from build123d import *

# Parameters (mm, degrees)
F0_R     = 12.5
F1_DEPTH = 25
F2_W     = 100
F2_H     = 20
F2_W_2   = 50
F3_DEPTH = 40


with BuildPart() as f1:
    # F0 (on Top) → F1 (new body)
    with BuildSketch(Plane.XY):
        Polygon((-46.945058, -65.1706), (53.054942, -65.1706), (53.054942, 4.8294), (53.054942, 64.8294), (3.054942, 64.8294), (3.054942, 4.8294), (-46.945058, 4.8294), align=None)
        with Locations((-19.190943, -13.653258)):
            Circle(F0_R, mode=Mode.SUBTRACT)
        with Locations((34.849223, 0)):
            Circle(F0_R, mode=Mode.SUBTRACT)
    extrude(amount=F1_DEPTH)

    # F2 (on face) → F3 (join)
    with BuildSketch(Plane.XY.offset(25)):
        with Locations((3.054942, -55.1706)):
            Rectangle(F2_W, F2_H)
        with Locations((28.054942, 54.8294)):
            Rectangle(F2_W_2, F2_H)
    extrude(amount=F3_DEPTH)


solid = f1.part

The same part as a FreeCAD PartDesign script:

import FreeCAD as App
import Part
import Sketcher

V = App.Vector

doc = App.newDocument("Part")
params = doc.addObject("Spreadsheet::Sheet", "Params")
for row, (alias, value) in enumerate([
    ("sketch1_diameter", "25 mm"),
    ("sketch1_width", "100 mm"),
    ("sketch1_height", "130 mm"),
    ("sketch1_height2", "60 mm"),
    ("pad1_length", "25 mm"),
    ("sketch2_width", "100 mm"),
    ("sketch2_width2", "50 mm"),
    ("sketch2_height", "20 mm"),
    ("pad2_length", "40 mm"),
], start=1):
    params.set(f"A{row}", alias)
    params.set(f"B{row}", "=" + value)
    params.setAlias(f"B{row}", alias)

body = doc.addObject("PartDesign::Body", "Body")

sketch1 = doc.addObject("Sketcher::SketchObject", "Sketch")
body.addObject(sketch1)
sketch1.AttachmentSupport = (doc.XY_Plane, [""])
sketch1.MapMode = "FlatFace"
sketch1.addGeometry([
    Part.LineSegment(V(-46.945058, -65.1706, 0), V(53.054942, -65.1706, 0)),
    Part.LineSegment(V(53.054942, -65.1706, 0), V(53.054942, 64.8294, 0)),
    Part.LineSegment(V(53.054942, 64.8294, 0), V(3.054942, 64.8294, 0)),
    Part.LineSegment(V(3.054942, 64.8294, 0), V(3.054942, 4.8294, 0)),
    Part.LineSegment(V(3.054942, 4.8294, 0), V(-46.945058, 4.8294, 0)),
    Part.LineSegment(V(-46.945058, 4.8294, 0), V(-46.945058, -65.1706, 0)),
    Part.Circle(V(-19.190943, -13.653258, 0), V(0, 0, 1), 12.5),
    Part.Circle(V(34.849223, 0, 0), V(0, 0, 1), 12.5),
], False)
sketch1.addConstraint([
    Sketcher.Constraint("Coincident", 0, 2, 1, 1),
    Sketcher.Constraint("Coincident", 1, 2, 2, 1),
    Sketcher.Constraint("Coincident", 2, 2, 3, 1),
    Sketcher.Constraint("Coincident", 3, 2, 4, 1),
    Sketcher.Constraint("Coincident", 4, 2, 5, 1),
    Sketcher.Constraint("Coincident", 5, 2, 0, 1),
    Sketcher.Constraint("Horizontal", 0),
    Sketcher.Constraint("Vertical", 1),
    Sketcher.Constraint("Horizontal", 2),
    Sketcher.Constraint("Vertical", 3),
    Sketcher.Constraint("Horizontal", 4),
    Sketcher.Constraint("Vertical", 5),
    Sketcher.Constraint("Equal", 6, 7),
    Sketcher.Constraint("PointOnObject", 7, 3, -1),
    Sketcher.Constraint("Equal", 2, 4),
    Sketcher.Constraint("Diameter", 6, 25.0),
    Sketcher.Constraint("DistanceX", 0, 1, 0, 2, 100.0),
    Sketcher.Constraint("DistanceY", 1, 1, 1, 2, 130.0),
    Sketcher.Constraint("DistanceY", 3, 2, 3, 1, 60.0),
    Sketcher.Constraint("DistanceY", 0, 2, -1, 1, 65.1706),
    Sketcher.Constraint("DistanceX", -1, 1, 0, 2, 53.054942),
    Sketcher.Constraint("DistanceX", 7, 3, 0, 2, 18.205719),
    Sketcher.Constraint("DistanceY", 0, 2, 6, 3, 51.517342),
    Sketcher.Constraint("DistanceX", 6, 3, -1, 1, 19.190943),
])
sketch1.setExpression("Constraints[15]", "Params.sketch1_diameter")
sketch1.setExpression("Constraints[16]", "Params.sketch1_width")
sketch1.setExpression("Constraints[17]", "Params.sketch1_height")
sketch1.setExpression("Constraints[18]", "Params.sketch1_height2")
pad1 = doc.addObject("PartDesign::Pad", "Pad")
body.addObject(pad1)
pad1.Profile = sketch1
pad1.setExpression("Length", "Params.pad1_length")

sketch2 = doc.addObject("Sketcher::SketchObject", "Sketch001")
body.addObject(sketch2)
sketch2.AttachmentSupport = (doc.XY_Plane, [""])
sketch2.MapMode = "FlatFace"
sketch2.AttachmentOffset = App.Placement(V(0, 0, 25), App.Rotation())
sketch2.addGeometry([
    Part.LineSegment(V(-46.945058, -45.1706, 0), V(-46.945058, -65.1706, 0)),
    Part.LineSegment(V(-46.945058, -65.1706, 0), V(53.054942, -65.1706, 0)),
    Part.LineSegment(V(53.054942, -65.1706, 0), V(53.054942, -45.1706, 0)),
    Part.LineSegment(V(53.054942, -45.1706, 0), V(-46.945058, -45.1706, 0)),
    Part.LineSegment(V(3.054942, 64.8294, 0), V(3.054942, 44.8294, 0)),
    Part.LineSegment(V(3.054942, 44.8294, 0), V(53.054942, 44.8294, 0)),
    Part.LineSegment(V(53.054942, 44.8294, 0), V(53.054942, 64.8294, 0)),
    Part.LineSegment(V(53.054942, 64.8294, 0), V(3.054942, 64.8294, 0)),
], False)
sketch2.addConstraint([
    Sketcher.Constraint("Coincident", 0, 2, 1, 1),
    Sketcher.Constraint("Coincident", 1, 2, 2, 1),
    Sketcher.Constraint("Coincident", 2, 2, 3, 1),
    Sketcher.Constraint("Coincident", 3, 2, 0, 1),
    Sketcher.Constraint("Coincident", 4, 2, 5, 1),
    Sketcher.Constraint("Coincident", 5, 2, 6, 1),
    Sketcher.Constraint("Coincident", 6, 2, 7, 1),
    Sketcher.Constraint("Coincident", 7, 2, 4, 1),
    Sketcher.Constraint("Vertical", 0),
    Sketcher.Constraint("Horizontal", 1),
    Sketcher.Constraint("Vertical", 2),
    Sketcher.Constraint("Horizontal", 3),
    Sketcher.Constraint("Vertical", 4),
    Sketcher.Constraint("Horizontal", 5),
    Sketcher.Constraint("Vertical", 6),
    Sketcher.Constraint("Horizontal", 7),
    Sketcher.Constraint("Vertical", 2, 2, 5, 2),
    Sketcher.Constraint("Equal", 2, 4),
    Sketcher.Constraint("DistanceX", 1, 1, 1, 2, 100.0),
    Sketcher.Constraint("DistanceX", 5, 1, 5, 2, 50.0),
    Sketcher.Constraint("DistanceY", 0, 2, 0, 1, 20.0),
    Sketcher.Constraint("DistanceY", 2, 2, 4, 2, 90.0),
    Sketcher.Constraint("DistanceY", 0, 2, -1, 1, 65.1706),
    Sketcher.Constraint("DistanceX", 0, 2, -1, 1, 46.945058),
])
sketch2.setExpression("Constraints[18]", "Params.sketch2_width")
sketch2.setExpression("Constraints[19]", "Params.sketch2_width2")
sketch2.setExpression("Constraints[20]", "Params.sketch2_height")
pad2 = doc.addObject("PartDesign::Pad", "Pad001")
body.addObject(pad2)
pad2.Profile = sketch2
pad2.setExpression("Length", "Params.pad2_length")

doc.recompute()
